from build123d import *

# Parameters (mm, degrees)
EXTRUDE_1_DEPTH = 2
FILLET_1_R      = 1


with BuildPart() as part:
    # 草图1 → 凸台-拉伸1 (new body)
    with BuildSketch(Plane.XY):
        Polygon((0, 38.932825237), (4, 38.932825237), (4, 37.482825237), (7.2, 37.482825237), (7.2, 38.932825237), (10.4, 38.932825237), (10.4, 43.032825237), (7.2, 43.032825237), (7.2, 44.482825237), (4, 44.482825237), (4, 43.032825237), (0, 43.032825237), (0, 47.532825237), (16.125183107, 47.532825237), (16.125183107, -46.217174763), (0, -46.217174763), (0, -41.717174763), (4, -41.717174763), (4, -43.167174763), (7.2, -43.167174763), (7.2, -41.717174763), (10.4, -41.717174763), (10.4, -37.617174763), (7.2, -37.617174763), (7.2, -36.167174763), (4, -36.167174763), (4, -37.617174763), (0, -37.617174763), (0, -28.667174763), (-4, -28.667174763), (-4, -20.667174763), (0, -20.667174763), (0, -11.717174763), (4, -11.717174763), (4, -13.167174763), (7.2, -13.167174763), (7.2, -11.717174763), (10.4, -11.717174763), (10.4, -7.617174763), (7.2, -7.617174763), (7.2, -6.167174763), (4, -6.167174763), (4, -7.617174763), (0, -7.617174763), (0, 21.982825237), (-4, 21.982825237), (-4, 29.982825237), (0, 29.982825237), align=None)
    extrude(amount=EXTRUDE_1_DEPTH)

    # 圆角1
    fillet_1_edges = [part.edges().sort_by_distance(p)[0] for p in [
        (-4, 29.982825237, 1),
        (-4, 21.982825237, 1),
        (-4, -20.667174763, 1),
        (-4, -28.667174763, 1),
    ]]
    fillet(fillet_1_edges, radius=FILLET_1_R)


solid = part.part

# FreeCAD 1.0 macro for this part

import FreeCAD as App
import Part
import Sketcher
Q = App.Units.Quantity


def edges_at(feature, points):
    """Names of the edges that pass closest to the given points."""
    edges = feature.Shape.Edges
    near = lambda p: min(range(len(edges)), key=lambda i: edges[i].distToShape(Part.Vertex(*p))[0])
    return sorted({f"Edge{near(p) + 1}" for p in points})

doc = App.newDocument("Part")
body = doc.addObject("PartDesign::Body", "Body")

sketch1 = body.newObject("Sketcher::SketchObject", "Sketch")
sketch1.AttachmentSupport = (doc.getObject("XY_Plane"), [""])
sketch1.MapMode = "FlatFace"
sketch1.addGeometry(Part.LineSegment(App.Vector(4, 38.932825, 0), App.Vector(0, 38.932825, 0)), False)
sketch1.addGeometry(Part.LineSegment(App.Vector(0, 38.932825, 0), App.Vector(0, 29.982825, 0)), False)
sketch1.addGeometry(Part.LineSegment(App.Vector(0, 29.982825, 0), App.Vector(-4, 29.982825, 0)), False)
sketch1.addGeometry(Part.LineSegment(App.Vector(-4, 29.982825, 0), App.Vector(-4, 21.982825, 0)), False)
sketch1.addGeometry(Part.LineSegment(App.Vector(-4, 21.982825, 0), App.Vector(0, 21.982825, 0)), False)
sketch1.addGeometry(Part.LineSegment(App.Vector(0, 21.982825, 0), App.Vector(0, -7.617175, 0)), False)
sketch1.addGeometry(Part.LineSegment(App.Vector(0, -7.617175, 0), App.Vector(4, -7.617175, 0)), False)
sketch1.addGeometry(Part.LineSegment(App.Vector(4, -7.617175, 0), App.Vector(4, -6.167175, 0)), False)
sketch1.addGeometry(Part.LineSegment(App.Vector(4, -6.167175, 0), App.Vector(7.2, -6.167175, 0)), False)
sketch1.addGeometry(Part.LineSegment(App.Vector(7.2, -6.167175, 0), App.Vector(7.2, -7.617175, 0)), False)
sketch1.addGeometry(Part.LineSegment(App.Vector(7.2, -7.617175, 0), App.Vector(10.4, -7.617175, 0)), False)
sketch1.addGeometry(Part.LineSegment(App.Vector(10.4, -7.617175, 0), App.Vector(10.4, -11.717175, 0)), False)
sketch1.addGeometry(Part.LineSegment(App.Vector(10.4, -11.717175, 0), App.Vector(7.2, -11.717175, 0)), False)
sketch1.addGeometry(Part.LineSegment(App.Vector(7.2, -11.717175, 0), App.Vector(7.2, -13.167175, 0)), False)
sketch1.addGeometry(Part.LineSegment(App.Vector(7.2, -13.167175, 0), App.Vector(4, -13.167175, 0)), False)
sketch1.addGeometry(Part.LineSegment(App.Vector(4, -13.167175, 0), App.Vector(4, -11.717175, 0)), False)
sketch1.addGeometry(Part.LineSegment(App.Vector(4, -11.717175, 0), App.Vector(0, -11.717175, 0)), False)
sketch1.addGeometry(Part.LineSegment(App.Vector(0, -11.717175, 0), App.Vector(0, -20.667175, 0)), False)
sketch1.addGeometry(Part.LineSegment(App.Vector(0, -20.667175, 0), App.Vector(-4, -20.667175, 0)), False)
sketch1.addGeometry(Part.LineSegment(App.Vector(-4, -20.667175, 0), App.Vector(-4, -28.667175, 0)), False)
sketch1.addGeometry(Part.LineSegment(App.Vector(-4, -28.667175, 0), App.Vector(0, -28.667175, 0)), False)
sketch1.addGeometry(Part.LineSegment(App.Vector(0, -28.667175, 0), App.Vector(0, -37.617175, 0)), False)
sketch1.addGeometry(Part.LineSegment(App.Vector(0, -37.617175, 0), App.Vector(4, -37.617175, 0)), False)
sketch1.addGeometry(Part.LineSegment(App.Vector(4, -37.617175, 0), App.Vector(4, -36.167175, 0)), False)
sketch1.addGeometry(Part.LineSegment(App.Vector(4, -36.167175, 0), App.Vector(7.2, -36.167175, 0)), False)
sketch1.addGeometry(Part.LineSegment(App.Vector(7.2, -36.167175, 0), App.Vector(7.2, -37.617175, 0)), False)
sketch1.addGeometry(Part.LineSegment(App.Vector(7.2, -37.617175, 0), App.Vector(10.4, -37.617175, 0)), False)
sketch1.addGeometry(Part.LineSegment(App.Vector(10.4, -37.617175, 0), App.Vector(10.4, -41.717175, 0)), False)
sketch1.addGeometry(Part.LineSegment(App.Vector(10.4, -41.717175, 0), App.Vector(7.2, -41.717175, 0)), False)
sketch1.addGeometry(Part.LineSegment(App.Vector(7.2, -41.717175, 0), App.Vector(7.2, -43.167175, 0)), False)
sketch1.addGeometry(Part.LineSegment(App.Vector(7.2, -43.167175, 0), App.Vector(4, -43.167175, 0)), False)
sketch1.addGeometry(Part.LineSegment(App.Vector(4, -43.167175, 0), App.Vector(4, -41.717175, 0)), False)
sketch1.addGeometry(Part.LineSegment(App.Vector(4, -41.717175, 0), App.Vector(0, -41.717175, 0)), False)
sketch1.addGeometry(Part.LineSegment(App.Vector(0, -41.717175, 0), App.Vector(0, -46.217175, 0)), False)
sketch1.addGeometry(Part.LineSegment(App.Vector(0, -46.217175, 0), App.Vector(16.125183, -46.217175, 0)), False)
sketch1.addGeometry(Part.LineSegment(App.Vector(16.125183, -46.217175, 0), App.Vector(16.125183, 47.532825, 0)), False)
sketch1.addGeometry(Part.LineSegment(App.Vector(16.125183, 47.532825, 0), App.Vector(0, 47.532825, 0)), False)
sketch1.addGeometry(Part.LineSegment(App.Vector(0, 47.532825, 0), App.Vector(0, 43.032825, 0)), False)
sketch1.addGeometry(Part.LineSegment(App.Vector(0, 43.032825, 0), App.Vector(4, 43.032825, 0)), False)
sketch1.addGeometry(Part.LineSegment(App.Vector(4, 43.032825, 0), App.Vector(4, 44.482825, 0)), False)
sketch1.addGeometry(Part.LineSegment(App.Vector(4, 44.482825, 0), App.Vector(7.2, 44.482825, 0)), False)
sketch1.addGeometry(Part.LineSegment(App.Vector(7.2, 44.482825, 0), App.Vector(7.2, 43.032825, 0)), False)
sketch1.addGeometry(Part.LineSegment(App.Vector(7.2, 43.032825, 0), App.Vector(10.4, 43.032825, 0)), False)
sketch1.addGeometry(Part.LineSegment(App.Vector(10.4, 43.032825, 0), App.Vector(10.4, 38.932825, 0)), False)
sketch1.addGeometry(Part.LineSegment(App.Vector(10.4, 38.932825, 0), App.Vector(7.2, 38.932825, 0)), False)
sketch1.addGeometry(Part.LineSegment(App.Vector(7.2, 38.932825, 0), App.Vector(7.2, 37.482825, 0)), False)
sketch1.addGeometry(Part.LineSegment(App.Vector(7.2, 37.482825, 0), App.Vector(4, 37.482825, 0)), False)
sketch1.addGeometry(Part.LineSegment(App.Vector(4, 37.482825, 0), App.Vector(4, 38.932825, 0)), False)
sketch1.addConstraint(Sketcher.Constraint("Coincident", 0, 2, 1, 1))
sketch1.addConstraint(Sketcher.Constraint("Coincident", 1, 2, 2, 1))
sketch1.addConstraint(Sketcher.Constraint("Coincident", 2, 2, 3, 1))
sketch1.addConstraint(Sketcher.Constraint("Coincident", 3, 2, 4, 1))
sketch1.addConstraint(Sketcher.Constraint("Coincident", 4, 2, 5, 1))
sketch1.addConstraint(Sketcher.Constraint("Coincident", 5, 2, 6, 1))
sketch1.addConstraint(Sketcher.Constraint("Coincident", 6, 2, 7, 1))
sketch1.addConstraint(Sketcher.Constraint("Coincident", 7, 2, 8, 1))
sketch1.addConstraint(Sketcher.Constraint("Coincident", 8, 2, 9, 1))
sketch1.addConstraint(Sketcher.Constraint("Coincident", 9, 2, 10, 1))
sketch1.addConstraint(Sketcher.Constraint("Coincident", 10, 2, 11, 1))
sketch1.addConstraint(Sketcher.Constraint("Coincident", 11, 2, 12, 1))
sketch1.addConstraint(Sketcher.Constraint("Coincident", 12, 2, 13, 1))
sketch1.addConstraint(Sketcher.Constraint("Coincident", 13, 2, 14, 1))
sketch1.addConstraint(Sketcher.Constraint("Coincident", 14, 2, 15, 1))
sketch1.addConstraint(Sketcher.Constraint("Coincident", 15, 2, 16, 1))
sketch1.addConstraint(Sketcher.Constraint("Coincident", 16, 2, 17, 1))
sketch1.addConstraint(Sketcher.Constraint("Coincident", 17, 2, 18, 1))
sketch1.addConstraint(Sketcher.Constraint("Coincident", 18, 2, 19, 1))
sketch1.addConstraint(Sketcher.Constraint("Coincident", 19, 2, 20, 1))
sketch1.addConstraint(Sketcher.Constraint("Coincident", 20, 2, 21, 1))
sketch1.addConstraint(Sketcher.Constraint("Coincident", 21, 2, 22, 1))
sketch1.addConstraint(Sketcher.Constraint("Coincident", 22, 2, 23, 1))
sketch1.addConstraint(Sketcher.Constraint("Coincident", 23, 2, 24, 1))
sketch1.addConstraint(Sketcher.Constraint("Coincident", 24, 2, 25, 1))
sketch1.addConstraint(Sketcher.Constraint("Coincident", 25, 2, 26, 1))
sketch1.addConstraint(Sketcher.Constraint("Coincident", 26, 2, 27, 1))
sketch1.addConstraint(Sketcher.Constraint("Coincident", 27, 2, 28, 1))
sketch1.addConstraint(Sketcher.Constraint("Coincident", 28, 2, 29, 1))
sketch1.addConstraint(Sketcher.Constraint("Coincident", 29, 2, 30, 1))
sketch1.addConstraint(Sketcher.Constraint("Coincident", 30, 2, 31, 1))
sketch1.addConstraint(Sketcher.Constraint("Coincident", 31, 2, 32, 1))
sketch1.addConstraint(Sketcher.Constraint("Coincident", 32, 2, 33, 1))
sketch1.addConstraint(Sketcher.Constraint("Coincident", 33, 2, 34, 1))
sketch1.addConstraint(Sketcher.Constraint("Coincident", 34, 2, 35, 1))
sketch1.addConstraint(Sketcher.Constraint("Coincident", 35, 2, 36, 1))
sketch1.addConstraint(Sketcher.Constraint("Coincident", 36, 2, 37, 1))
sketch1.addConstraint(Sketcher.Constraint("Coincident", 37, 2, 38, 1))
sketch1.addConstraint(Sketcher.Constraint("Coincident", 38, 2, 39, 1))
sketch1.addConstraint(Sketcher.Constraint("Coincident", 39, 2, 40, 1))
sketch1.addConstraint(Sketcher.Constraint("Coincident", 40, 2, 41, 1))
sketch1.addConstraint(Sketcher.Constraint("Coincident", 41, 2, 42, 1))
sketch1.addConstraint(Sketcher.Constraint("Coincident", 42, 2, 43, 1))
sketch1.addConstraint(Sketcher.Constraint("Coincident", 43, 2, 44, 1))
sketch1.addConstraint(Sketcher.Constraint("Coincident", 44, 2, 45, 1))
sketch1.addConstraint(Sketcher.Constraint("Coincident", 45, 2, 46, 1))
sketch1.addConstraint(Sketcher.Constraint("Coincident", 46, 2, 47, 1))
sketch1.addConstraint(Sketcher.Constraint("Coincident", 47, 2, 0, 1))
sketch1.addConstraint(Sketcher.Constraint("Horizontal", 0))
sketch1.addConstraint(Sketcher.Constraint("Vertical", 1))
sketch1.addConstraint(Sketcher.Constraint("Horizontal", 2))
sketch1.addConstraint(Sketcher.Constraint("Vertical", 3))
sketch1.addConstraint(Sketcher.Constraint("Horizontal", 4))
sketch1.addConstraint(Sketcher.Constraint("Vertical", 5))
sketch1.addConstraint(Sketcher.Constraint("Horizontal", 6))
sketch1.addConstraint(Sketcher.Constraint("Vertical", 7))
sketch1.addConstraint(Sketcher.Constraint("Horizontal", 8))
sketch1.addConstraint(Sketcher.Constraint("Vertical", 9))
sketch1.addConstraint(Sketcher.Constraint("Horizontal", 10))
sketch1.addConstraint(Sketcher.Constraint("Vertical", 11))
sketch1.addConstraint(Sketcher.Constraint("Horizontal", 12))
sketch1.addConstraint(Sketcher.Constraint("Vertical", 13))
sketch1.addConstraint(Sketcher.Constraint("Horizontal", 14))
sketch1.addConstraint(Sketcher.Constraint("Vertical", 15))
sketch1.addConstraint(Sketcher.Constraint("Horizontal", 16))
sketch1.addConstraint(Sketcher.Constraint("Vertical", 17))
sketch1.addConstraint(Sketcher.Constraint("Horizontal", 18))
sketch1.addConstraint(Sketcher.Constraint("Vertical", 19))
sketch1.addConstraint(Sketcher.Constraint("Horizontal", 20))
sketch1.addConstraint(Sketcher.Constraint("Vertical", 21))
sketch1.addConstraint(Sketcher.Constraint("Horizontal", 22))
sketch1.addConstraint(Sketcher.Constraint("Vertical", 23))
sketch1.addConstraint(Sketcher.Constraint("Horizontal", 24))
sketch1.addConstraint(Sketcher.Constraint("Vertical", 25))
sketch1.addConstraint(Sketcher.Constraint("Horizontal", 26))
sketch1.addConstraint(Sketcher.Constraint("Vertical", 27))
sketch1.addConstraint(Sketcher.Constraint("Horizontal", 28))
sketch1.addConstraint(Sketcher.Constraint("Vertical", 29))
sketch1.addConstraint(Sketcher.Constraint("Horizontal", 30))
sketch1.addConstraint(Sketcher.Constraint("Vertical", 31))
sketch1.addConstraint(Sketcher.Constraint("Horizontal", 32))
sketch1.addConstraint(Sketcher.Constraint("Vertical", 33))
sketch1.addConstraint(Sketcher.Constraint("Horizontal", 34))
sketch1.addConstraint(Sketcher.Constraint("Vertical", 35))
sketch1.addConstraint(Sketcher.Constraint("Horizontal", 36))
sketch1.addConstraint(Sketcher.Constraint("Vertical", 37))
sketch1.addConstraint(Sketcher.Constraint("Horizontal", 38))
sketch1.addConstraint(Sketcher.Constraint("Vertical", 39))
sketch1.addConstraint(Sketcher.Constraint("Horizontal", 40))
sketch1.addConstraint(Sketcher.Constraint("Vertical", 41))
sketch1.addConstraint(Sketcher.Constraint("Horizontal", 42))
sketch1.addConstraint(Sketcher.Constraint("Vertical", 43))
sketch1.addConstraint(Sketcher.Constraint("Horizontal", 44))
sketch1.addConstraint(Sketcher.Constraint("Vertical", 45))
sketch1.addConstraint(Sketcher.Constraint("Horizontal", 46))
sketch1.addConstraint(Sketcher.Constraint("Vertical", 47))
sketch1.addConstraint(Sketcher.Constraint("PointOnObject", 0, 2, -2))
sketch1.addConstraint(Sketcher.Constraint("PointOnObject", 4, 2, -2))
sketch1.addConstraint(Sketcher.Constraint("PointOnObject", 16, 2, -2))
sketch1.addConstraint(Sketcher.Constraint("PointOnObject", 20, 2, -2))
sketch1.addConstraint(Sketcher.Constraint("PointOnObject", 32, 2, -2))
sketch1.addConstraint(Sketcher.Constraint("PointOnObject", 36, 2, -2))
sketch1.addConstraint(Sketcher.Constraint("Horizontal", 6, 2, 9, 2))
sketch1.addConstraint(Sketcher.Constraint("Horizontal", 12, 2, 15, 2))
sketch1.addConstraint(Sketcher.Constraint("Horizontal", 22, 2, 25, 2))
sketch1.addConstraint(Sketcher.Constraint("Horizontal", 28, 2, 31, 2))
sketch1.addConstraint(Sketcher.Constraint("Horizontal", 38, 2, 41, 2))
sketch1.addConstraint(Sketcher.Constraint("Horizontal", 0, 2, 43, 2))
sketch1.addConstraint(Sketcher.Constraint("Vertical", 9, 2, 12, 2))
sketch1.addConstraint(Sketcher.Constraint("Vertical", 7, 2, 14, 2))
sketch1.addConstraint(Sketcher.Constraint("Vertical", 3, 2, 18, 2))
sketch1.addConstraint(Sketcher.Constraint("Vertical", 15, 2, 22, 2))
sketch1.addConstraint(Sketcher.Constraint("Vertical", 13, 2, 24, 2))
sketch1.addConstraint(Sketcher.Constraint("Vertical", 11, 2, 26, 2))
sketch1.addConstraint(Sketcher.Constraint("Vertical", 25, 2, 28, 2))
sketch1.addConstraint(Sketcher.Constraint("Vertical", 23, 2, 30, 2))
sketch1.addConstraint(Sketcher.Constraint("Vertical", 31, 2, 38, 2))
sketch1.addConstraint(Sketcher.Constraint("Vertical", 29, 2, 40, 2))
sketch1.addConstraint(Sketcher.Constraint("Vertical", 27, 2, 42, 2))
sketch1.addConstraint(Sketcher.Constraint("Vertical", 41, 2, 44, 2))
sketch1.addConstraint(Sketcher.Constraint("Vertical", 39, 2, 46, 2))
sketch1.addConstraint(Sketcher.Constraint("Equal", 0, 2))
sketch1.addConstraint(Sketcher.Constraint("Equal", 8, 10))
sketch1.addConstraint(Sketcher.Constraint("Equal", 9, 13))
sketch1.addConstraint(Sketcher.Constraint("Equal", 1, 17))
sketch1.addConstraint(Sketcher.Constraint("Equal", 3, 19))
sketch1.addConstraint(Sketcher.Constraint("Equal", 17, 21))
sketch1.addConstraint(Sketcher.Constraint("Equal", 15, 23))
sketch1.addConstraint(Sketcher.Constraint("Equal", 11, 27))
sketch1.addConstraint(Sketcher.Constraint("Equal", 25, 29))
sketch1.addConstraint(Sketcher.Constraint("Equal", 33, 37))
sketch1.addConstraint(Sketcher.Constraint("Equal", 31, 39))
sketch1.addConstraint(Sketcher.Constraint("Equal", 27, 43))
sketch1.addConstraint(Sketcher.Constraint("Equal", 41, 45))
sketch1.addConstraint(Sketcher.Constraint("DistanceX", 0, 2, 0, 1, Q("4 mm")))
sketch1.addConstraint(Sketcher.Constraint("DistanceY", 3, 2, 3, 1, Q("8 mm")))
sketch1.addConstraint(Sketcher.Constraint("DistanceX", 8, 1, 8, 2, Q("3.2 mm")))
sketch1.addConstraint(Sketcher.Constraint("DistanceY", 5, 2, 5, 1, Q("29.6 mm")))
sketch1.addConstraint(Sketcher.Constraint("DistanceY", 11, 2, 11, 1, Q("4.1 mm")))
sketch1.addConstraint(Sketcher.Constraint("DistanceY", 33, 2, 33, 1, Q("4.5 mm")))
sketch1.addConstraint(Sketcher.Constraint("DistanceY", 1, 2, 1, 1, Q("8.95 mm")))
sketch1.addConstraint(Sketcher.Constraint("DistanceY", 7, 1, 7, 2, Q("1.45 mm")))
sketch1.addConstraint(Sketcher.Constraint("DistanceX", 34, 1, 34, 2, Q("16.125183 mm")))
sketch1.addConstraint(Sketcher.Constraint("DistanceY", -1, 1, 0, 2, Q("38.932825 mm")))
pad1 = body.newObject("PartDesign::Pad", "Pad")
pad1.Profile = sketch1
pad1.Length = 2
doc.recompute()

fillet = body.newObject("PartDesign::Fillet", "Fillet")
fillet.Base = (pad1, edges_at(pad1, [
    (-4, 29.983, 1),
    (-4, 21.983, 1),
    (-4, -20.667, 1),
    (-4, -28.667, 1),
]))
fillet.Radius = 1

doc.recompute()
